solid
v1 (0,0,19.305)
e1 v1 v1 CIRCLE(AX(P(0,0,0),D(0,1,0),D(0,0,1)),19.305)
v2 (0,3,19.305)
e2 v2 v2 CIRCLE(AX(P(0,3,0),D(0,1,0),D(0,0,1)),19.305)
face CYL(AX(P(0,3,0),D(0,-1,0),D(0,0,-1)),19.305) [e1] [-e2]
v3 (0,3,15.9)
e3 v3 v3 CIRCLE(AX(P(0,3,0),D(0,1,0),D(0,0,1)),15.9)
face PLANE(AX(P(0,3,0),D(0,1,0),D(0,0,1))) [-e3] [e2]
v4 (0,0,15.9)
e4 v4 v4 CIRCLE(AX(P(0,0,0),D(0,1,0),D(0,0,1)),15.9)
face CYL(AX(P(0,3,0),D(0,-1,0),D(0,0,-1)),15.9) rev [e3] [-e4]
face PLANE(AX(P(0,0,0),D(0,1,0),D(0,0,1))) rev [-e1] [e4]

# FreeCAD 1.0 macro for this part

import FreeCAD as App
import Part
import Sketcher
Q = App.Units.Quantity

doc = App.newDocument("Part")
body = doc.addObject("PartDesign::Body", "Body")

# Sketch on XZ plane
sketch1 = body.newObject("Sketcher::SketchObject", "Sketch")
sketch1.AttachmentSupport = (doc.getObject("XZ_Plane"), [""])
sketch1.MapMode = "FlatFace"
sketch1.addGeometry([
    Part.Circle(App.Vector(0, 0, 0), App.Vector(0, 0, 1), 19),
    Part.Circle(App.Vector(0, 0, 0), App.Vector(0, 0, 1), 16),
], False)
sketch1.addConstraint([
    Sketcher.Constraint("Coincident", 0, 3, -1, 1),
    Sketcher.Constraint("Coincident", 1, 3, -1, 1),
    Sketcher.Constraint("Diameter", 1, Q("31.8 mm")),
    Sketcher.Constraint("Diameter", 0, Q("38.61 mm")),
])
pad1 = body.newObject("PartDesign::Pad", "Pad")
pad1.Profile = sketch1
pad1.Length = 3
pad1.Reversed = True

doc.recompute()
